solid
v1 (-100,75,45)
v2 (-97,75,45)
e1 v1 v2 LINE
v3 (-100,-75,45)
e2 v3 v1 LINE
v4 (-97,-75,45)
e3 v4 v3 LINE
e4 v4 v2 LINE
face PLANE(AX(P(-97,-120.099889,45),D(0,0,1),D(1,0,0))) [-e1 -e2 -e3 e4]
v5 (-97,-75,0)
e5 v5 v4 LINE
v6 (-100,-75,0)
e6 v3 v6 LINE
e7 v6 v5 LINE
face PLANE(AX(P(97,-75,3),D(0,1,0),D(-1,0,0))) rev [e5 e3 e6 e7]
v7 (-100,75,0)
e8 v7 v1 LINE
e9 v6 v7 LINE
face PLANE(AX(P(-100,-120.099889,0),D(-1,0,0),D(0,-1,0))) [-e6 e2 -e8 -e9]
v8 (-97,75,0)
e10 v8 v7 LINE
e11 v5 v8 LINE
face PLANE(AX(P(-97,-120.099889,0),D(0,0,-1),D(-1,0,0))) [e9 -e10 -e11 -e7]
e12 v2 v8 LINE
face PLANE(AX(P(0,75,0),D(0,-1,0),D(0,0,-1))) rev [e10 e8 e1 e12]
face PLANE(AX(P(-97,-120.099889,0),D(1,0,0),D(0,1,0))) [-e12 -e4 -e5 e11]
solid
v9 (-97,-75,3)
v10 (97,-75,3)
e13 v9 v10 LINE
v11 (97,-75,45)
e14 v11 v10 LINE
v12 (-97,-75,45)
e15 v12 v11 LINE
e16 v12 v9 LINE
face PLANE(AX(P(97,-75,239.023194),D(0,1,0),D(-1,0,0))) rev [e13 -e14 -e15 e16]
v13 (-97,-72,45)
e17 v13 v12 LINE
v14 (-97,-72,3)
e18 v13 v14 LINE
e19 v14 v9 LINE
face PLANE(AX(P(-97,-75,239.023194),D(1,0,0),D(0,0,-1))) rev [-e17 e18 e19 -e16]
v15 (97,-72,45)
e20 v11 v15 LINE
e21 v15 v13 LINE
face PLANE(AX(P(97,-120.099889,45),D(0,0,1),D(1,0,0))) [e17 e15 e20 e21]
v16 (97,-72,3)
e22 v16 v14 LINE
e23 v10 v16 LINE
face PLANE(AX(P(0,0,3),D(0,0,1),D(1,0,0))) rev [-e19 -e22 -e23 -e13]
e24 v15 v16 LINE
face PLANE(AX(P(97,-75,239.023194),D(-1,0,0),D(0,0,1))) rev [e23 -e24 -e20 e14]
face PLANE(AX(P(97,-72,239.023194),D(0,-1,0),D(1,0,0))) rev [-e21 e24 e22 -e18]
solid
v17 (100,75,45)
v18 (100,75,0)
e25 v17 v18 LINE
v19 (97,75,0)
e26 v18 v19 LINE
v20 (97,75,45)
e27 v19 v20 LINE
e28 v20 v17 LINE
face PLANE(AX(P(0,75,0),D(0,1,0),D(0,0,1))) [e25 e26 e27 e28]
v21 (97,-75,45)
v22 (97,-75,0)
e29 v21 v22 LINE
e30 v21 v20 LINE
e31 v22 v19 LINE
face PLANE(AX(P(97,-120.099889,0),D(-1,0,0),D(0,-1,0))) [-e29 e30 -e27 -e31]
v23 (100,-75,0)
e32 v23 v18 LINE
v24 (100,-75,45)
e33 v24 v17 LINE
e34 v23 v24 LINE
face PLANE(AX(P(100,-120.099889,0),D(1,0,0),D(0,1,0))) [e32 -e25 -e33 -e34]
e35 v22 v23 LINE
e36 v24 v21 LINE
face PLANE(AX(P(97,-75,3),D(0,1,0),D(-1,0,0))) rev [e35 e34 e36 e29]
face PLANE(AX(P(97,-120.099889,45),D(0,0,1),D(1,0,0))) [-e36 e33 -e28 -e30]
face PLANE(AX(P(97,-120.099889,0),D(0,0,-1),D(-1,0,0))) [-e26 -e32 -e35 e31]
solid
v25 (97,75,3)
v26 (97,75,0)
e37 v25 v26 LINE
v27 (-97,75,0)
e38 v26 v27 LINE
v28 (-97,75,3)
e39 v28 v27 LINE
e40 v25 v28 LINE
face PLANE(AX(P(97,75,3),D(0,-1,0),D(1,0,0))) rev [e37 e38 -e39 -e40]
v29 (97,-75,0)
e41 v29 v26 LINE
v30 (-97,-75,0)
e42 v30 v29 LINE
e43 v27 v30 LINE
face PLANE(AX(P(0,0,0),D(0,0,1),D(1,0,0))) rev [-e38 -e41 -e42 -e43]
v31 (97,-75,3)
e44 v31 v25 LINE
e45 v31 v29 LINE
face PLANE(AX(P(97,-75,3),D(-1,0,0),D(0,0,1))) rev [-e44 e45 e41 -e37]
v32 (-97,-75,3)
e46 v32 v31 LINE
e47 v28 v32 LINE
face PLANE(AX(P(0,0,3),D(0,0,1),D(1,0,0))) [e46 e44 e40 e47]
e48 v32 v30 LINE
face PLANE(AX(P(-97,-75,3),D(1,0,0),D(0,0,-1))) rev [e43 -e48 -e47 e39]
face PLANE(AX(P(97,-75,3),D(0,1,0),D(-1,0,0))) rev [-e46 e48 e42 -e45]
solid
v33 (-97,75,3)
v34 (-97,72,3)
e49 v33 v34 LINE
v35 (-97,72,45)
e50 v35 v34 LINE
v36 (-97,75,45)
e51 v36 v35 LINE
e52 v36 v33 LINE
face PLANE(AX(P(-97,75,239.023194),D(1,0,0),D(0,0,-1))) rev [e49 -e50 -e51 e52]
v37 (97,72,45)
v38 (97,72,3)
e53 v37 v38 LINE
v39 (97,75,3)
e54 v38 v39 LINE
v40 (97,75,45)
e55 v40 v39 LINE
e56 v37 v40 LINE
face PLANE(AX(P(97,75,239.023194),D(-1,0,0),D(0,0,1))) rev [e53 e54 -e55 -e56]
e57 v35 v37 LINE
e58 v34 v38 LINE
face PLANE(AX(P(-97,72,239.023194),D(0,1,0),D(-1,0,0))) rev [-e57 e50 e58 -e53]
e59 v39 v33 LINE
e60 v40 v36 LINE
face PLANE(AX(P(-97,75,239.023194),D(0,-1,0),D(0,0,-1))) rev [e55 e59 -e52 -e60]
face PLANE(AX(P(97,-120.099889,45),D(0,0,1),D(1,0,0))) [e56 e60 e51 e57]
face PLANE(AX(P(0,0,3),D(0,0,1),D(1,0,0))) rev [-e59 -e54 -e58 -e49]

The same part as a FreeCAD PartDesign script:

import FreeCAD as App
import Part
import Sketcher

V = App.Vector
Q = App.Units.Quantity


def add_polygon(sketch, points):
    """Adds a closed chain of lines whose ends are joined by coincident constraints."""
    first, n = sketch.GeometryCount, len(points)
    for a, b in zip(points, points[1:] + points[:1]):
        sketch.addGeometry(Part.LineSegment(App.Vector(*a, 0), App.Vector(*b, 0)), False)
    for i in range(n):
        sketch.addConstraint(Sketcher.Constraint("Coincident", first + i, 2, first + (i + 1) % n, 1))

doc = App.newDocument("Part")
body = doc.addObject("PartDesign::Body", "Body")

# Sketch on XY plane
sketch1 = body.newObject("Sketcher::SketchObject", "Sketch")
sketch1.AttachmentSupport = (doc.getObject("XY_Plane"), [""])
sketch1.MapMode = "FlatFace"
add_polygon(sketch1, [(-97, 75), (-97, -75), (97, -75), (97, 75)])  # lines 0-3
sketch1.addConstraint([
    Sketcher.Constraint("Vertical", 0),
    Sketcher.Constraint("Horizontal", 1),
    Sketcher.Constraint("Vertical", 2),
    Sketcher.Constraint("Horizontal", 3),
    Sketcher.Constraint("Symmetric", 0, 2, 2, 2, -1, 1),
    Sketcher.Constraint("DistanceX", 1, 1, 1, 2, Q("194 mm")),
    Sketcher.Constraint("DistanceY", 0, 2, 0, 1, Q("150 mm")),
])
pad1 = body.newObject("PartDesign::Pad", "Pad")
pad1.Profile = sketch1
pad1.Length = 3
body2 = doc.addObject("PartDesign::Body", "Body001")

# Sketch on XZ plane
sketch2 = body2.newObject("Sketcher::SketchObject", "Sketch001")
sketch2.AttachmentSupport = (doc.getObject("XZ_Plane001"), [""])
sketch2.MapMode = "FlatFace"
sketch2.AttachmentOffset = App.Placement(V(0, 0, -75), App.Rotation())
add_polygon(sketch2, [(-100, 0), (-100, 45), (-97, 45), (-97, 0)])  # lines 0-3
sketch2.addConstraint([
    Sketcher.Constraint("Vertical", 0),
    Sketcher.Constraint("Horizontal", 1),
    Sketcher.Constraint("Vertical", 2),
    Sketcher.Constraint("Horizontal", 3),
    Sketcher.Constraint("PointOnObject", 2, 2, -1),
    Sketcher.Constraint("DistanceX", 1, 1, 1, 2, Q("3 mm")),
    Sketcher.Constraint("DistanceY", 0, 1, 0, 2, Q("45 mm")),
    Sketcher.Constraint("DistanceX", 0, 2, -1, 1, Q("100 mm")),
])
pad2 = body2.newObject("PartDesign::Pad", "Pad001")
pad2.Profile = sketch2
pad2.Length = 150
body3 = doc.addObject("PartDesign::Body", "Body002")

# Sketch on XZ plane
sketch3 = body3.newObject("Sketcher::SketchObject", "Sketch002")
sketch3.AttachmentSupport = (doc.getObject("XZ_Plane002"), [""])
sketch3.MapMode = "FlatFace"
sketch3.AttachmentOffset = App.Placement(V(0, 0, -75), App.Rotation())
add_polygon(sketch3, [(97, 0), (97, 45), (100, 45), (100, 0)])  # lines 0-3
sketch3.addConstraint([
    Sketcher.Constraint("Vertical", 0),
    Sketcher.Constraint("Horizontal", 1),
    Sketcher.Constraint("Vertical", 2),
    Sketcher.Constraint("Horizontal", 3),
    Sketcher.Constraint("PointOnObject", 2, 2, -1),
    Sketcher.Constraint("DistanceX", 1, 1, 1, 2, Q("3 mm")),
    Sketcher.Constraint("DistanceY", 0, 1, 0, 2, Q("45 mm")),
    Sketcher.Constraint("DistanceX", -1, 1, 0, 2, Q("97 mm")),
])
pad3 = body3.newObject("PartDesign::Pad", "Pad002")
pad3.Profile = sketch3
pad3.Length = 150
body4 = doc.addObject("PartDesign::Body", "Body003")

# Sketch on XY plane
sketch4 = body4.newObject("Sketcher::SketchObject", "Sketch003")
sketch4.AttachmentSupport = (doc.getObject("XY_Plane003"), [""])
sketch4.MapMode = "FlatFace"
sketch4.AttachmentOffset = App.Placement(V(0, 0, 3), App.Rotation())
add_polygon(sketch4, [(-97, 75), (-97, 72), (97, 72), (97, 75)])  # lines 0-3
sketch4.addConstraint([
    Sketcher.Constraint("Vertical", 0),
    Sketcher.Constraint("Horizontal", 1),
    Sketcher.Constraint("Vertical", 2),
    Sketcher.Constraint("Horizontal", 3),
    Sketcher.Constraint("DistanceX", 1, 1, 1, 2, Q("194 mm")),
    Sketcher.Constraint("DistanceY", 0, 2, 0, 1, Q("3 mm")),
    Sketcher.Constraint("DistanceX", 0, 2, -1, 1, Q("97 mm")),
    Sketcher.Constraint("DistanceY", -1, 1, 0, 2, Q("72 mm")),
])
pad4 = body4.newObject("PartDesign::Pad", "Pad003")
pad4.Profile = sketch4
pad4.Length = 42
body5 = doc.addObject("PartDesign::Body", "Body004")

# Sketch on XY plane
sketch5 = body5.newObject("Sketcher::SketchObject", "Sketch004")
sketch5.AttachmentSupport = (doc.getObject("XY_Plane004"), [""])
sketch5.MapMode = "FlatFace"
sketch5.AttachmentOffset = App.Placement(V(0, 0, 3), App.Rotation())
add_polygon(sketch5, [(-97, -72), (-97, -75), (97, -75), (97, -72)])  # lines 0-3
sketch5.addConstraint([
    Sketcher.Constraint("Vertical", 0),
    Sketcher.Constraint("Horizontal", 1),
    Sketcher.Constraint("Vertical", 2),
    Sketcher.Constraint("Horizontal", 3),
    Sketcher.Constraint("DistanceX", 1, 1, 1, 2, Q("194 mm")),
    Sketcher.Constraint("DistanceY", 0, 2, 0, 1, Q("3 mm")),
    Sketcher.Constraint("DistanceX", 0, 2, -1, 1, Q("97 mm")),
    Sketcher.Constraint("DistanceY", 0, 2, -1, 1, Q("75 mm")),
])
pad5 = body5.newObject("PartDesign::Pad", "Pad004")
pad5.Profile = sketch5
pad5.Length = 42

doc.recompute()
